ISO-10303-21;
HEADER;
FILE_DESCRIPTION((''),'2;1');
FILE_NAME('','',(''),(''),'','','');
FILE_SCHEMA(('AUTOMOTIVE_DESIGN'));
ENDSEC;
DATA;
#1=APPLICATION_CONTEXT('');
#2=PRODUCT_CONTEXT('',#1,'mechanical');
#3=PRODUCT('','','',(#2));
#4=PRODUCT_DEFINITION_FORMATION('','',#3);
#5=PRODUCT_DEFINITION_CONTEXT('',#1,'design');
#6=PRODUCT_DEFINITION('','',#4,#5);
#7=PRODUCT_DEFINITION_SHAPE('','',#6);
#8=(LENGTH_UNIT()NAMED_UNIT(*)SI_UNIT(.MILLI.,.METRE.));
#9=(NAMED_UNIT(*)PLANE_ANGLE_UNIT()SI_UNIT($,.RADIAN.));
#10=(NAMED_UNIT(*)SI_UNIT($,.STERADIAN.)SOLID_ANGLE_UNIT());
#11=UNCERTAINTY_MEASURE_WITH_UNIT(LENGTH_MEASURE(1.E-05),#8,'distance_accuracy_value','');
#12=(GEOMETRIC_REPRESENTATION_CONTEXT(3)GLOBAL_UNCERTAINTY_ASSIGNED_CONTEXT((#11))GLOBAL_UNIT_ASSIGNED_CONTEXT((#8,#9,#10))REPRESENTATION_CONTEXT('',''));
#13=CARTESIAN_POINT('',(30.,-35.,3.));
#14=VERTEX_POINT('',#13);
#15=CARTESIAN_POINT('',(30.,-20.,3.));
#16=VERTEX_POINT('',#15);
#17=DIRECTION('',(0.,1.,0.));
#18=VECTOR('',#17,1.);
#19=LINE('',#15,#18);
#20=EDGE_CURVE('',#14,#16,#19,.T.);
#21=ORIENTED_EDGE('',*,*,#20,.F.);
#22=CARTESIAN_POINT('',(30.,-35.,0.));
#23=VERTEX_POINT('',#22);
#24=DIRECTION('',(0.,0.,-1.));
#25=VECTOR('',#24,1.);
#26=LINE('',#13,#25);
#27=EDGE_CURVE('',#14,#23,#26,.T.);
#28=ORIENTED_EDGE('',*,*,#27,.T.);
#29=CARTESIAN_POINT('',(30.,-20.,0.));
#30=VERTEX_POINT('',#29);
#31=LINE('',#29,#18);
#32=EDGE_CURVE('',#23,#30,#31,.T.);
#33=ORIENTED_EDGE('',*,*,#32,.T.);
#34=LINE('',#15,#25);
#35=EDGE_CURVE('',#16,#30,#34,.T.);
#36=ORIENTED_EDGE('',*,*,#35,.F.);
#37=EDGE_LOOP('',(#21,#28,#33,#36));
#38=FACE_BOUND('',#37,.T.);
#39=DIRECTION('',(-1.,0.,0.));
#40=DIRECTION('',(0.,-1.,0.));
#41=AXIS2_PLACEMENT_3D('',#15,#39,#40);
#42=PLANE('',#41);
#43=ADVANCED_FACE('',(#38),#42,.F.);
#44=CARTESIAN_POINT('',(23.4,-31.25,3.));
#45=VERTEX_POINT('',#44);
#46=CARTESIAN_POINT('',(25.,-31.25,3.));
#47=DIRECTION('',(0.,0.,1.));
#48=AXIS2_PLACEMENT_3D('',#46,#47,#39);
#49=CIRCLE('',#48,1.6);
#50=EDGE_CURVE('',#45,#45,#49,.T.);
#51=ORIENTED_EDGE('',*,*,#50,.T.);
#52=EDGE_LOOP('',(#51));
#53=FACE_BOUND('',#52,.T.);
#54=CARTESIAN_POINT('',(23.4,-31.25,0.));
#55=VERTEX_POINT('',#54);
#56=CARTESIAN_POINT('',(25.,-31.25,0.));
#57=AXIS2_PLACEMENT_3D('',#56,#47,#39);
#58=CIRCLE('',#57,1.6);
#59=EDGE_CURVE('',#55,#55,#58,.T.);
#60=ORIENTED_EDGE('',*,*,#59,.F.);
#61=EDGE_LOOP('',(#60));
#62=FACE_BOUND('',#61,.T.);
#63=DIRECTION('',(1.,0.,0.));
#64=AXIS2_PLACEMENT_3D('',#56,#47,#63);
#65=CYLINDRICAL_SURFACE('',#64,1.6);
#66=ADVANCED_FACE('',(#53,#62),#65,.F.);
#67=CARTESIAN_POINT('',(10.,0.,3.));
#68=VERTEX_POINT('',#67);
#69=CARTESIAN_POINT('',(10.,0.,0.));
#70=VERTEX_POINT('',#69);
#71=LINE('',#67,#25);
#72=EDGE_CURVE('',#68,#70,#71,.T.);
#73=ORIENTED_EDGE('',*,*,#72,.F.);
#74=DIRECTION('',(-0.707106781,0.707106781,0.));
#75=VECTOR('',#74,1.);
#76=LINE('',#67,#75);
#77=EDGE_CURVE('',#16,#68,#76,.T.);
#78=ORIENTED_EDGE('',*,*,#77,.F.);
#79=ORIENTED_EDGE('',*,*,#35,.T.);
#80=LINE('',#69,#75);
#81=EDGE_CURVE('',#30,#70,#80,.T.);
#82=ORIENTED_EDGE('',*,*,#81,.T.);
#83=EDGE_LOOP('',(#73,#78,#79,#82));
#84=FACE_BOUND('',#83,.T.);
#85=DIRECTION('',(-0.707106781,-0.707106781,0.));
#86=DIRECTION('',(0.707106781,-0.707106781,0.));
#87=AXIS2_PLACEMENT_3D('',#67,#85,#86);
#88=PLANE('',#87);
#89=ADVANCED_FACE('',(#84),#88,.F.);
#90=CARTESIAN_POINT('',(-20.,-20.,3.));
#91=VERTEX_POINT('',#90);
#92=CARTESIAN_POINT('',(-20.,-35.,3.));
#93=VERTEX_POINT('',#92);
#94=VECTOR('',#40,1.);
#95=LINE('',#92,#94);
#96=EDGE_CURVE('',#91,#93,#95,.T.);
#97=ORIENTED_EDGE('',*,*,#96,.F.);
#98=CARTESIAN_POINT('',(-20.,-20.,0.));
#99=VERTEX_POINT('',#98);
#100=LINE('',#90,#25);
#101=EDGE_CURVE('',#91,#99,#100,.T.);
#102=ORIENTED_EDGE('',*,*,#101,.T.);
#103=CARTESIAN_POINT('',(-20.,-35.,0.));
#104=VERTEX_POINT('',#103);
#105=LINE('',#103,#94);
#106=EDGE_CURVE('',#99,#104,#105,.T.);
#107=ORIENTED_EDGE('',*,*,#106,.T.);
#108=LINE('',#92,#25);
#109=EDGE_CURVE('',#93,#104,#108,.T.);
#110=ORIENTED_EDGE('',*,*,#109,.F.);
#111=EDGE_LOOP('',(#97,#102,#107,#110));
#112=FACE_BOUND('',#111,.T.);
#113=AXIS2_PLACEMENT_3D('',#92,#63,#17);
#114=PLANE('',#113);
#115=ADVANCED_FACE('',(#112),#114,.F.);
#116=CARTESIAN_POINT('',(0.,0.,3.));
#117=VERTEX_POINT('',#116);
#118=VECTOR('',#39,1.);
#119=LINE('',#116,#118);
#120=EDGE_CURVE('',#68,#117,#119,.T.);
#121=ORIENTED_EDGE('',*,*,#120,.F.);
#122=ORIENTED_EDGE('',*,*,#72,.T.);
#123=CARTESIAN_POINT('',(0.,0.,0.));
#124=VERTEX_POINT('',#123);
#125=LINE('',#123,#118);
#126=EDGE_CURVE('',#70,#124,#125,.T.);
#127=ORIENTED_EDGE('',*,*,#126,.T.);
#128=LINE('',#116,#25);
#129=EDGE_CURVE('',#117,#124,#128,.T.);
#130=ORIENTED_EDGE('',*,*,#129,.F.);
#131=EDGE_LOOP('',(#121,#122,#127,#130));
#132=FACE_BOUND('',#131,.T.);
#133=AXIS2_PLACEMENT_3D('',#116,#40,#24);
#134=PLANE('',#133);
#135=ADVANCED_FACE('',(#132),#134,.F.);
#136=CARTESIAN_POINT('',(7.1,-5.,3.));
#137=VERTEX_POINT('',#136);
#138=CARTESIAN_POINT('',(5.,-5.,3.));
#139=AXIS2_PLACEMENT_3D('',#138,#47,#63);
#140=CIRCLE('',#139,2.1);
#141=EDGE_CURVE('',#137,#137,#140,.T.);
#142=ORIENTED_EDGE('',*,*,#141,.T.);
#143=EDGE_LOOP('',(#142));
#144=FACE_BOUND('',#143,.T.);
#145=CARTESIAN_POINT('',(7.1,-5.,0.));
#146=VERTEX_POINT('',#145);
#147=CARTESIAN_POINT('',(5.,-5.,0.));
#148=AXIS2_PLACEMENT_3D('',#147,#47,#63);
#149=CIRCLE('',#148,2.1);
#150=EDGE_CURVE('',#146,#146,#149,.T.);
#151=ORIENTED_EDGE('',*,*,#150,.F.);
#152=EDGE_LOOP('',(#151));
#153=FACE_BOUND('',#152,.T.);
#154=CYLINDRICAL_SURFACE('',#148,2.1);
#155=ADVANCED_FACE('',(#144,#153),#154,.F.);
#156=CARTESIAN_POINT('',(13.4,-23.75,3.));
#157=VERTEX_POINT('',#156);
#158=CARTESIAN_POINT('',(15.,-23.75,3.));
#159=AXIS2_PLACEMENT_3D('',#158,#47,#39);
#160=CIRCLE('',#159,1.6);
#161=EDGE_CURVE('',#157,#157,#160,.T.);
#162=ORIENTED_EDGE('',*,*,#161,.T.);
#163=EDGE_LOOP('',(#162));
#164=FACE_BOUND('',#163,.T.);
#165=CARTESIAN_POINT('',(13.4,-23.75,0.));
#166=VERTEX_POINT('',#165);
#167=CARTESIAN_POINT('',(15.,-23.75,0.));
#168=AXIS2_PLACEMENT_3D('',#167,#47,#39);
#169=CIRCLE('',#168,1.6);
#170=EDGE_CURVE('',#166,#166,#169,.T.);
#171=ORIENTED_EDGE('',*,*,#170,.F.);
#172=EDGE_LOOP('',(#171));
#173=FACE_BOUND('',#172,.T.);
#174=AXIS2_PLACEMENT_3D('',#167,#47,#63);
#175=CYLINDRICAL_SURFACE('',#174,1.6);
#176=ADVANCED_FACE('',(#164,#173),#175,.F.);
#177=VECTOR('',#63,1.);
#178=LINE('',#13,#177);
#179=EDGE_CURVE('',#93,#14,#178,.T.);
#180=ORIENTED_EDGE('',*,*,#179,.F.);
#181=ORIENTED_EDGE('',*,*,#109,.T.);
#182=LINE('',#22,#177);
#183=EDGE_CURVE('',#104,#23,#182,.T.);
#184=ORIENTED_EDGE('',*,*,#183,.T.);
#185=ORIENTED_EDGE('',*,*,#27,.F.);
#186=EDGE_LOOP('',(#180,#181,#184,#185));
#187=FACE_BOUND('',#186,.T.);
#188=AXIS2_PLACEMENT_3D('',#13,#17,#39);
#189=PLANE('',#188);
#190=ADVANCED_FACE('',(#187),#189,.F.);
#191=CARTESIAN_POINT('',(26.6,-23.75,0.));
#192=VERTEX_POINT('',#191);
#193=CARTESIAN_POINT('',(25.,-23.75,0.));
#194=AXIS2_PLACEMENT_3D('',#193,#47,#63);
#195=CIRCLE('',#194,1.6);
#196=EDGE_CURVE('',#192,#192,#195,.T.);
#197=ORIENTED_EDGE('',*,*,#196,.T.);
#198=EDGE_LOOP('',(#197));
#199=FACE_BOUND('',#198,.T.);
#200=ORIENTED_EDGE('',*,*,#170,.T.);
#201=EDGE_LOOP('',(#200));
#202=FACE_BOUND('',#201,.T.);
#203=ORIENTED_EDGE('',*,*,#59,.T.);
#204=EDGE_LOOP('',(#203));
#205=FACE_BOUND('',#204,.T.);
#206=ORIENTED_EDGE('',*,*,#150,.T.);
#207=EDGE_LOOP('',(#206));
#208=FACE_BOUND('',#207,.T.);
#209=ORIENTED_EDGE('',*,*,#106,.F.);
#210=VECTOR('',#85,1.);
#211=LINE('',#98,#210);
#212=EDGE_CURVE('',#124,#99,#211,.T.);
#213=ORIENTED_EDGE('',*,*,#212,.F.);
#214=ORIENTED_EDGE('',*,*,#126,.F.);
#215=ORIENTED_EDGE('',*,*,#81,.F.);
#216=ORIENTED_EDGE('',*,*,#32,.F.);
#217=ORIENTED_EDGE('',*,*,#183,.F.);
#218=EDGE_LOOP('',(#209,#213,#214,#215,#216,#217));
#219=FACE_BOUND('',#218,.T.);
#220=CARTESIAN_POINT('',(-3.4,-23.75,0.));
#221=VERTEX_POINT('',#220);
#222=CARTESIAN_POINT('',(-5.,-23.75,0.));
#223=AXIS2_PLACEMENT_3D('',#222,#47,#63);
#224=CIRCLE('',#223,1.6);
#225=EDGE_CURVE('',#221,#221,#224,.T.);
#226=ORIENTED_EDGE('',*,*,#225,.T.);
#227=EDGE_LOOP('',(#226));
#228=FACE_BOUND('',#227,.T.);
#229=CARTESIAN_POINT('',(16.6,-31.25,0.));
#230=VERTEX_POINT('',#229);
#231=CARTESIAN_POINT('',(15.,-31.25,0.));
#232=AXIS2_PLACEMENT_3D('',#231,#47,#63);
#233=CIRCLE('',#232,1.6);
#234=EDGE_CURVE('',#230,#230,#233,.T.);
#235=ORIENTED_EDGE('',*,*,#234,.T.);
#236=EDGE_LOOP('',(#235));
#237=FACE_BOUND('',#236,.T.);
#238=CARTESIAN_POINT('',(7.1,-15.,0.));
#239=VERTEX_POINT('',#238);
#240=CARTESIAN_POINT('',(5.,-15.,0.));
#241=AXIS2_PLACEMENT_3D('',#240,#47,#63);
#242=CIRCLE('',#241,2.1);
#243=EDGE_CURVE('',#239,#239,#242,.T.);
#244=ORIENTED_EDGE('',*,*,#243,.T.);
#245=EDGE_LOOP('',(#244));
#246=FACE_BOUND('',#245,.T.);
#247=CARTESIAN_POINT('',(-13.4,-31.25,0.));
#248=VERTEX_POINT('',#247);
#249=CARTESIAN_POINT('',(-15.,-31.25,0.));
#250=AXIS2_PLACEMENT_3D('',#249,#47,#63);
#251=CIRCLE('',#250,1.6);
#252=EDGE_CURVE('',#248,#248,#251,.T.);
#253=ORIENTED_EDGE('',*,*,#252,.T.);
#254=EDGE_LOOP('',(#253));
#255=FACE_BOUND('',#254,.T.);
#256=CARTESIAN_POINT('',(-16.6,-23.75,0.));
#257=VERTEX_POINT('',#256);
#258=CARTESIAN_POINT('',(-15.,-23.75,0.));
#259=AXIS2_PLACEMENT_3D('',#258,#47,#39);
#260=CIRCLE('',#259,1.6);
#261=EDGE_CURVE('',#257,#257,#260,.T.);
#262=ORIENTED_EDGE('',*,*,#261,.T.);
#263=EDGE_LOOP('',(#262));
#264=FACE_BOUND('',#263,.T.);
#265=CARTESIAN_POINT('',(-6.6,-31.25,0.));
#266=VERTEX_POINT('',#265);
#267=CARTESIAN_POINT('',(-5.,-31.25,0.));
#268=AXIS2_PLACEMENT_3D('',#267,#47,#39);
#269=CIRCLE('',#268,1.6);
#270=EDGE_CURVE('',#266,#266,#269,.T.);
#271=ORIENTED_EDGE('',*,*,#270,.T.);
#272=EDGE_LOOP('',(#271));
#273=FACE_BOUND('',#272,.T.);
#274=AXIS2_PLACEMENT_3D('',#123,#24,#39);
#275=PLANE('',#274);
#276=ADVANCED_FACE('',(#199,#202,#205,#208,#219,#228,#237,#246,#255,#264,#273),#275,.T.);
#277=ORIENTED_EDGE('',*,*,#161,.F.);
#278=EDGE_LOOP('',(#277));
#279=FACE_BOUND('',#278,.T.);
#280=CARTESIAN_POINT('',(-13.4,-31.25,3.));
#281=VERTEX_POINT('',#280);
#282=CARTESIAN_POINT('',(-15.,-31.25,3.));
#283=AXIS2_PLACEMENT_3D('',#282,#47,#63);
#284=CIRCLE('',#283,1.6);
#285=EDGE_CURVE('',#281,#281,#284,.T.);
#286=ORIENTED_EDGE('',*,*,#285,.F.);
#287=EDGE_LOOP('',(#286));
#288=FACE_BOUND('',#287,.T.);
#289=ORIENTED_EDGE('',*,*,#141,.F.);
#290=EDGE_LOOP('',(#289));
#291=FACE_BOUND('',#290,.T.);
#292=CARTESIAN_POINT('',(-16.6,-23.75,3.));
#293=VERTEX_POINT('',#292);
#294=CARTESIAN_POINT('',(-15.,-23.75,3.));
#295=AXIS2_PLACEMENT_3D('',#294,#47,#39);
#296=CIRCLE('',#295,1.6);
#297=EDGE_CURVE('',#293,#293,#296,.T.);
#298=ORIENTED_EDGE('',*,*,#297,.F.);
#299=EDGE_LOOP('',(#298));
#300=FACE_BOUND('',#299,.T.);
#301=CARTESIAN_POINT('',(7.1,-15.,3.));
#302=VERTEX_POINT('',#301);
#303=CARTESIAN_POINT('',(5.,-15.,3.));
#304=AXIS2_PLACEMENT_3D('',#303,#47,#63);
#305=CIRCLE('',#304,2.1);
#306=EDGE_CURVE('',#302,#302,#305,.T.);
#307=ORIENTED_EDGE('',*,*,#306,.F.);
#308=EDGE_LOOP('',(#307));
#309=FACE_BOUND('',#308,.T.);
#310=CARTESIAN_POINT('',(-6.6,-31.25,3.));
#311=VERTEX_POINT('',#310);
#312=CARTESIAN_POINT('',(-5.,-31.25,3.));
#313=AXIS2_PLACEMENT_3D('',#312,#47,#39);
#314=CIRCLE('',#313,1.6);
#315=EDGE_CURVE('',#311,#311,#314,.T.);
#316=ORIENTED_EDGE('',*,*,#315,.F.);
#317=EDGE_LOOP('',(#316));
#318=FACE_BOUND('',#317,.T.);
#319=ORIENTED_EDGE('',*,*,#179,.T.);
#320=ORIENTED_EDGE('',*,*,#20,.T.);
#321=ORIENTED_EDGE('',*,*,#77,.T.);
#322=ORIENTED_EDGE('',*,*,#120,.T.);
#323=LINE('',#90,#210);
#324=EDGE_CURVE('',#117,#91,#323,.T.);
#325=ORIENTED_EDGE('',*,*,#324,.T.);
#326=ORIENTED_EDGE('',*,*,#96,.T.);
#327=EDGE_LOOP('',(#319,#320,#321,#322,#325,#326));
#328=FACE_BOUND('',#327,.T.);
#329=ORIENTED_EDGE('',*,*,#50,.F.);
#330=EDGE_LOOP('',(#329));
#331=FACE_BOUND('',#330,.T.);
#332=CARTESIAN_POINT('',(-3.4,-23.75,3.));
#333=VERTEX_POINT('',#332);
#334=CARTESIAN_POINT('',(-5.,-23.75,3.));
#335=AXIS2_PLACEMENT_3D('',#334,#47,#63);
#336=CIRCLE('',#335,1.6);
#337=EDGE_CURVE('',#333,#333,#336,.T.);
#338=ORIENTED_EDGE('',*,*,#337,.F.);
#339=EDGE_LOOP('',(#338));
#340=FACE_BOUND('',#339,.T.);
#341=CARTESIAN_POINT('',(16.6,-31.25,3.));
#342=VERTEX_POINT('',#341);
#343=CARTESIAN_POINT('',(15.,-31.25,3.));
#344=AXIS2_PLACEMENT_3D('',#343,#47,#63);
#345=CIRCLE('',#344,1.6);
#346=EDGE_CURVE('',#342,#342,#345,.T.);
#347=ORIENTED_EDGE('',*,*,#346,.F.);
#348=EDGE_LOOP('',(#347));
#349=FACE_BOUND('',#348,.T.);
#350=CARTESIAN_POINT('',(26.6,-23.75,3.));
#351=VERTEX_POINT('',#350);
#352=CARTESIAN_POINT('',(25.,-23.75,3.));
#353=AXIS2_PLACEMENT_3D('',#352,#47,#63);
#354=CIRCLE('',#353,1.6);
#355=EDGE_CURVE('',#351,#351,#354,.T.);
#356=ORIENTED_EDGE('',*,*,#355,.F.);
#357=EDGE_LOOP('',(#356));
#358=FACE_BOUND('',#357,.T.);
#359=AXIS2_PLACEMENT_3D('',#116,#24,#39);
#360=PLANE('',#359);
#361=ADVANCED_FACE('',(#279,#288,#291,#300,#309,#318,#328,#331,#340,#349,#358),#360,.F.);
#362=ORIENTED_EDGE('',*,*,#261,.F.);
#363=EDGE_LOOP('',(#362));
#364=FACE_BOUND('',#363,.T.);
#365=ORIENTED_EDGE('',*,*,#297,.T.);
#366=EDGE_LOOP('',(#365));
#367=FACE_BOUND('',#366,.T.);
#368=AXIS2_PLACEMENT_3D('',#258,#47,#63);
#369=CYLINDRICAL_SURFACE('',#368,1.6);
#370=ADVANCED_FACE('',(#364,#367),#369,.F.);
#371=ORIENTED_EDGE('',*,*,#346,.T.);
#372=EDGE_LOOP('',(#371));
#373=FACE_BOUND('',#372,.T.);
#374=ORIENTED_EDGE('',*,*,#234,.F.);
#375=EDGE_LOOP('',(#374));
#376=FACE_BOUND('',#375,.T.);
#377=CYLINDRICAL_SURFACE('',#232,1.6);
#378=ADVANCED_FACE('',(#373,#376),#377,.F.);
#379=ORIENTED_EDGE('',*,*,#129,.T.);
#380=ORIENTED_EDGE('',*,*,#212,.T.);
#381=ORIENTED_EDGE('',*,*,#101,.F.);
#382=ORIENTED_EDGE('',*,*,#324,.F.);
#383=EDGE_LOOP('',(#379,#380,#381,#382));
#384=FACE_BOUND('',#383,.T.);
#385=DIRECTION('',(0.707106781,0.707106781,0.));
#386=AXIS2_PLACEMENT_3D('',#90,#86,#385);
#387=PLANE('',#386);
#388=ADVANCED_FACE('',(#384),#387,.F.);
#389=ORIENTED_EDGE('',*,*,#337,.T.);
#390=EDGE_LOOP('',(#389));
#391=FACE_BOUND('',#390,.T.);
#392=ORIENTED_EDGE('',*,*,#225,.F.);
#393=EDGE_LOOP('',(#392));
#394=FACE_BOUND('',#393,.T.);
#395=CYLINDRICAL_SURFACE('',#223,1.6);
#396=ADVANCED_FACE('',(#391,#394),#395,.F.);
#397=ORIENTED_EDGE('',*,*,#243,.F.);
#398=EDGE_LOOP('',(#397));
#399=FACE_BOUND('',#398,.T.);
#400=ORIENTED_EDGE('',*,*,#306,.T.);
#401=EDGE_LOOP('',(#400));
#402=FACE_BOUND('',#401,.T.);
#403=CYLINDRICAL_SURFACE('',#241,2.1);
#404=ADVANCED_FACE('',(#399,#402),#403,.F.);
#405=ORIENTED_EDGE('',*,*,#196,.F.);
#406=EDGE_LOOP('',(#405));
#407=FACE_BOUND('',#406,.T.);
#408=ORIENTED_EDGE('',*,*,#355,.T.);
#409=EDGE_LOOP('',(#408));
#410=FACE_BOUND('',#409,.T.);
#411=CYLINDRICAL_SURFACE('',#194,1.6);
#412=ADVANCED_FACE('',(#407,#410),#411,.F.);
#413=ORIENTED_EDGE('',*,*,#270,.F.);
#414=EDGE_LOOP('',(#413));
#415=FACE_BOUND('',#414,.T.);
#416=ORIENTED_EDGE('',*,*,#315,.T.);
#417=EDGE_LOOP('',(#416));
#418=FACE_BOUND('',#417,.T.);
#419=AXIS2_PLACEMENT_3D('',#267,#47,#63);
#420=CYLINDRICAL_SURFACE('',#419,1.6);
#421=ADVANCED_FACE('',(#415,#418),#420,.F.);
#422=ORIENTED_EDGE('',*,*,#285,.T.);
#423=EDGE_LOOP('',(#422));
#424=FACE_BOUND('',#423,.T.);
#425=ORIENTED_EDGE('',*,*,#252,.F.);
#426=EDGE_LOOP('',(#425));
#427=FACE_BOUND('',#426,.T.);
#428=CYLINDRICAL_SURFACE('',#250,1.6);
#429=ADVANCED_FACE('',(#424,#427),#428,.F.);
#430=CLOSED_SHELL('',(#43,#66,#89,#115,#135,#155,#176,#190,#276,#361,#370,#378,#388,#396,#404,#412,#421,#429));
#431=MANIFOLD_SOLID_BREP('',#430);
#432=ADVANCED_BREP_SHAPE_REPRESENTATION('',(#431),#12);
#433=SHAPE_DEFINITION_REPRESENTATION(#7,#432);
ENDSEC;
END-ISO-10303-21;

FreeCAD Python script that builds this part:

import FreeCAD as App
import Part
import Sketcher


def add_polygon(sketch, points):
    """Adds a closed chain of lines whose ends are joined by coincident constraints."""
    first, n = sketch.GeometryCount, len(points)
    for a, b in zip(points, points[1:] + points[:1]):
        sketch.addGeometry(Part.LineSegment(App.Vector(*a, 0), App.Vector(*b, 0)), False)
    for i in range(n):
        sketch.addConstraint(Sketcher.Constraint("Coincident", first + i, 2, first + (i + 1) % n, 1))

doc = App.newDocument("Part")
body = doc.addObject("PartDesign::Body", "Body")

sketch1 = body.newObject("Sketcher::SketchObject", "Sketch")
sketch1.AttachmentSupport = (doc.getObject("XY_Plane"), [""])
sketch1.MapMode = "FlatFace"
add_polygon(sketch1, [(10, 0), (0, 0), (-20, -20), (-20, -35), (30, -35), (30, -20)])
sketch1.addConstraint([
    Sketcher.Constraint("Horizontal", 0),
    Sketcher.Constraint("Vertical", 2),
    Sketcher.Constraint("Horizontal", 3),
    Sketcher.Constraint("Vertical", 4),
    Sketcher.Constraint("Coincident", 0, 2, -1, 1),
    Sketcher.Constraint("Perpendicular", 1, 5),
    Sketcher.Constraint("Horizontal", 1, 2, 4, 2),
    Sketcher.Constraint("Equal", 1, 5),
    Sketcher.Constraint("DistanceX", 0, 2, 0, 1, 10.0),
    Sketcher.Constraint("DistanceX", 3, 1, 3, 2, 50.0),
    Sketcher.Constraint("DistanceY", 2, 2, 2, 1, 15.0),
])
pad1 = body.newObject("PartDesign::Pad", "Pad")
pad1.Profile = sketch1
pad1.Length = 3

sketch2 = body.newObject("Sketcher::SketchObject", "Sketch001")
sketch2.AttachmentSupport = (doc.getObject("XY_Plane"), [""])
sketch2.MapMode = "FlatFace"
sketch2.AttachmentOffset = App.Placement(App.Vector(0, 0, 3), App.Rotation())
sketch2.addGeometry([
    Part.Circle(App.Vector(-15, -31.2, 0), App.Vector(0, 0, 1), 1.6),
    Part.Circle(App.Vector(-5, -31.2, 0), App.Vector(0, 0, 1), 1.6),
    Part.Circle(App.Vector(-5, -23.8, 0), App.Vector(0, 0, 1), 1.6),
    Part.Circle(App.Vector(-15, -23.8, 0), App.Vector(0, 0, 1), 1.6),
    Part.Circle(App.Vector(25, -23.8, 0), App.Vector(0, 0, 1), 1.6),
    Part.Circle(App.Vector(15, -23.8, 0), App.Vector(0, 0, 1), 1.6),
    Part.Circle(App.Vector(15, -31.2, 0), App.Vector(0, 0, 1), 1.6),
    Part.Circle(App.Vector(25, -31.2, 0), App.Vector(0, 0, 1), 1.6),
    Part.Circle(App.Vector(5, -5, 0), App.Vector(0, 0, 1), 2.1),
    Part.Circle(App.Vector(5, -15, 0), App.Vector(0, 0, 1), 2.1),
], False)
sketch2.addConstraint([
    Sketcher.Constraint("Equal", 0, 1),
    Sketcher.Constraint("Equal", 1, 2),
    Sketcher.Constraint("Equal", 2, 3),
    Sketcher.Constraint("Equal", 3, 4),
    Sketcher.Constraint("Equal", 4, 5),
    Sketcher.Constraint("Equal", 5, 6),
    Sketcher.Constraint("Equal", 6, 7),
    Sketcher.Constraint("Equal", 8, 9),
    Sketcher.Constraint("Symmetric", 3, 3, 5, 3, -2),
    Sketcher.Constraint("Symmetric", 0, 3, 6, 3, -2),
    Sketcher.Constraint("Horizontal", 0, 3, 1, 3),
    Sketcher.Constraint("Horizontal", 2, 3, 3, 3),
    Sketcher.Constraint("Horizontal", 3, 3, 4, 3),
    Sketcher.Constraint("Horizontal", 6, 3, 7, 3),
    Sketcher.Constraint("Vertical", 1, 3, 2, 3),
    Sketcher.Constraint("Vertical", 0, 3, 3, 3),
    Sketcher.Constraint("Vertical", 4, 3, 7, 3),
    Sketcher.Constraint("Vertical", 8, 3, 9, 3),
    Sketcher.Constraint("Diameter", 0, 3.2),
    Sketcher.Constraint("Diameter", 8, 4.2),
    Sketcher.Constraint("DistanceX", 0, 3, -1, 1, 15.0),
    Sketcher.Constraint("DistanceX", 1, 3, -1, 1, 5.0),
    Sketcher.Constraint("DistanceX", -1, 1, 4, 3, 25.0),
    Sketcher.Constraint("DistanceX", -1, 1, 8, 3, 5.0),
    Sketcher.Constraint("DistanceY", 8, 3, -1, 1, 5.0),
    Sketcher.Constraint("DistanceY", 9, 3, -1, 1, 15.0),
    Sketcher.Constraint("DistanceY", 1, 3, 2, 3, 7.5),
    Sketcher.Constraint("DistanceY", 0, 3, -1, 1, 31.25),
])
pocket1 = body.newObject("PartDesign::Pocket", "Pocket")
pocket1.Profile = sketch2
pocket1.Type = "ThroughAll"

doc.recompute()
